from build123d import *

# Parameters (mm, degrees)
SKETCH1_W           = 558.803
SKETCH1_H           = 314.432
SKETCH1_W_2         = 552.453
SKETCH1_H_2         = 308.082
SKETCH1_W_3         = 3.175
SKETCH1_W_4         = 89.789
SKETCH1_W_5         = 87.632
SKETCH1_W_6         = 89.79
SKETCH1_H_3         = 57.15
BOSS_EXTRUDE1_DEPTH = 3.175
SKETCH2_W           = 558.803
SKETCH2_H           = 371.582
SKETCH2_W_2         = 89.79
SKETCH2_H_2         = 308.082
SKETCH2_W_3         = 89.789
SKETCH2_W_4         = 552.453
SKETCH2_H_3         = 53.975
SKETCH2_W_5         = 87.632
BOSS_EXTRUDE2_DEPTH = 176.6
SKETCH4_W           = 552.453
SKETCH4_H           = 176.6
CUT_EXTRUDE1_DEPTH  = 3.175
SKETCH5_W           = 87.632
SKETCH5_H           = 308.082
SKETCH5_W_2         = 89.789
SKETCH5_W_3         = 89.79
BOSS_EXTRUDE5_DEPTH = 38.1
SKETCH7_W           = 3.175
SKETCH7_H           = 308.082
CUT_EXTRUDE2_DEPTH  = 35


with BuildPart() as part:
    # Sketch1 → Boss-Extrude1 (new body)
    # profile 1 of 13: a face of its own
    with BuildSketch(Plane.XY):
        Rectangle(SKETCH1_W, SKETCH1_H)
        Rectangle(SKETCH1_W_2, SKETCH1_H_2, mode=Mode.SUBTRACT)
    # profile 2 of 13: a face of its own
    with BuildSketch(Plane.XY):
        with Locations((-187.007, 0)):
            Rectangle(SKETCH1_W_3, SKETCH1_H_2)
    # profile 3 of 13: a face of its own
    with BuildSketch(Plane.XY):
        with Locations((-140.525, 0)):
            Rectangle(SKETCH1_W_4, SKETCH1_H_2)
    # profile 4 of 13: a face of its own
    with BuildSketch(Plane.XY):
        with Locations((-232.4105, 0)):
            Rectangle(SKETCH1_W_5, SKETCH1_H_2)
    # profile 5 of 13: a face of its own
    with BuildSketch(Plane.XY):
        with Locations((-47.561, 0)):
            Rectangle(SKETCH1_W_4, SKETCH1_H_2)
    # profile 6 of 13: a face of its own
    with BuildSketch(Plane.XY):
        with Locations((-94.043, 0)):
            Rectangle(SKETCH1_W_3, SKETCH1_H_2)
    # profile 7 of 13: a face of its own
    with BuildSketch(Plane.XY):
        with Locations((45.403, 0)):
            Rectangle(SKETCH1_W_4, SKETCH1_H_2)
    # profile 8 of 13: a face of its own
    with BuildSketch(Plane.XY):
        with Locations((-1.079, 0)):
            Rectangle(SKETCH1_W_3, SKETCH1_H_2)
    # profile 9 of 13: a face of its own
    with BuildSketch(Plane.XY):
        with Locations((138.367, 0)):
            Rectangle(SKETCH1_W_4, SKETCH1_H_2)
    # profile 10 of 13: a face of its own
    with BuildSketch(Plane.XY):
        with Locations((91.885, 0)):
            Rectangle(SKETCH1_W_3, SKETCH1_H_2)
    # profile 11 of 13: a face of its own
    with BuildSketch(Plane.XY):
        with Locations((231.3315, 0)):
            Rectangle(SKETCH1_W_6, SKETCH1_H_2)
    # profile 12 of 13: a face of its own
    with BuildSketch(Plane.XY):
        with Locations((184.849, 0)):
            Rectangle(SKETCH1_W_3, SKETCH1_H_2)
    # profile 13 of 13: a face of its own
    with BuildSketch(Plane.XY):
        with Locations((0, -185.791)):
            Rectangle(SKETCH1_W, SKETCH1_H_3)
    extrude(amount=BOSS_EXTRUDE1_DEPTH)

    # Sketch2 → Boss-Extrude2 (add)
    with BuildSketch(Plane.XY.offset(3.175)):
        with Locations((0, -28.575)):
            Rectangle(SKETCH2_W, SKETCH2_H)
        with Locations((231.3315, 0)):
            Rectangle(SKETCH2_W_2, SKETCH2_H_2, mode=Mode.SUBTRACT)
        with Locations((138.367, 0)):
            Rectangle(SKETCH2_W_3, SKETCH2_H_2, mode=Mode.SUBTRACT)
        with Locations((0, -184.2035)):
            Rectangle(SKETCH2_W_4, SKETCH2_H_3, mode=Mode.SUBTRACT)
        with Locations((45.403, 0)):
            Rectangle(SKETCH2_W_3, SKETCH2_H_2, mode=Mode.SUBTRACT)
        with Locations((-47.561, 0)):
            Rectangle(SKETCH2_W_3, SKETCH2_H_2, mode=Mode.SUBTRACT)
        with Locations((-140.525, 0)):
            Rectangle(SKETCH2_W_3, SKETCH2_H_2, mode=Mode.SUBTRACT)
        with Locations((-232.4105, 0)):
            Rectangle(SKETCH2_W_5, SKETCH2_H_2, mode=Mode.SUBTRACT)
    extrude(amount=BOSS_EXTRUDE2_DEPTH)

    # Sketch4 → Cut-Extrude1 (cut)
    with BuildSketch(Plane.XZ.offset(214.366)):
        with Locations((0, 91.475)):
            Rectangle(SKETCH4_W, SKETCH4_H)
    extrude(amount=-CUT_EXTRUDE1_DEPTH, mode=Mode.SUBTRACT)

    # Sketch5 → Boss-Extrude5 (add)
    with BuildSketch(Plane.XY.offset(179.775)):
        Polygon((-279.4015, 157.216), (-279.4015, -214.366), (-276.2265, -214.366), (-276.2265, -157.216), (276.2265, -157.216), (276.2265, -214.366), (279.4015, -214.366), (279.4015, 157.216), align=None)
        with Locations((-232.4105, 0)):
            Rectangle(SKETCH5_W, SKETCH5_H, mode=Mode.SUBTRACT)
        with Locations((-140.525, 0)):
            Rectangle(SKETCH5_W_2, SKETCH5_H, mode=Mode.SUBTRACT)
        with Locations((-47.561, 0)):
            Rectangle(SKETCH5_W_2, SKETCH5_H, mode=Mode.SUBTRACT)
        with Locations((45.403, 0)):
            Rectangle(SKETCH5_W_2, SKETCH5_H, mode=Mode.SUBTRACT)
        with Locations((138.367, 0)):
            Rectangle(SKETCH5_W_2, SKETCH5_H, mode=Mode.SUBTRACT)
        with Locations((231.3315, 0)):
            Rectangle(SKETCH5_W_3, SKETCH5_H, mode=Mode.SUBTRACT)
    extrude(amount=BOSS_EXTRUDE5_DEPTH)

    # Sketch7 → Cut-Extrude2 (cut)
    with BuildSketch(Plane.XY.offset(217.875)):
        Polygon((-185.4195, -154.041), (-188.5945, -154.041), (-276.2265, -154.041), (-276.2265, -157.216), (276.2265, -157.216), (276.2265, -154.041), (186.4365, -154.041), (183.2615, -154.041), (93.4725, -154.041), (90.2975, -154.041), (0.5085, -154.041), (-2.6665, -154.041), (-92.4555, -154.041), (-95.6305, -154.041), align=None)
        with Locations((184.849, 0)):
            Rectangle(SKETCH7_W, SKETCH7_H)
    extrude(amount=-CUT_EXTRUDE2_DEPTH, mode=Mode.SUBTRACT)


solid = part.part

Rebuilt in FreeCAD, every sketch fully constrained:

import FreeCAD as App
import Part
import Sketcher
from FreeCAD import Vector
Q = App.Units.Quantity


def add_polygon(sketch, points):
    """Adds a closed chain of lines whose ends are joined by coincident constraints."""
    first, n = sketch.GeometryCount, len(points)
    for a, b in zip(points, points[1:] + points[:1]):
        sketch.addGeometry(Part.LineSegment(App.Vector(*a, 0), App.Vector(*b, 0)), False)
    for i in range(n):
        sketch.addConstraint(Sketcher.Constraint("Coincident", first + i, 2, first + (i + 1) % n, 1))

doc = App.newDocument("Part")
body = doc.addObject("PartDesign::Body", "Body")

sketch1 = body.newObject("Sketcher::SketchObject", "Sketch")
sketch1.AttachmentSupport = (doc.getObject("XY_Plane"), [""])
sketch1.MapMode = "FlatFace"
add_polygon(sketch1, [(-279.4015, 157.216), (-279.4015, -214.366), (279.4015, -214.366), (279.4015, 157.216)])
sketch1.addConstraint(Sketcher.Constraint("Vertical", 0))
sketch1.addConstraint(Sketcher.Constraint("Horizontal", 1))
sketch1.addConstraint(Sketcher.Constraint("Vertical", 2))
sketch1.addConstraint(Sketcher.Constraint("Horizontal", 3))
sketch1.addConstraint(Sketcher.Constraint("DistanceX", 1, 1, 1, 2, Q("558.803 mm")))
sketch1.addConstraint(Sketcher.Constraint("DistanceY", 0, 2, 0, 1, Q("371.582 mm")))
sketch1.addConstraint(Sketcher.Constraint("DistanceX", 0, 2, -1, 1, Q("279.4015 mm")))
sketch1.addConstraint(Sketcher.Constraint("DistanceY", 0, 2, -1, 1, Q("214.366 mm")))
pad1 = body.newObject("PartDesign::Pad", "Pad")
pad1.Profile = sketch1
pad1.Length = Q("0.125 in")

sketch2 = body.newObject("Sketcher::SketchObject", "Sketch001")
sketch2.AttachmentSupport = (doc.getObject("XY_Plane"), [""])
sketch2.MapMode = "FlatFace"
sketch2.AttachmentOffset = App.Placement(Vector(0, 0, 0.125 * 25.4), App.Rotation())
add_polygon(sketch2, [(-279.4015, 157.216), (-279.4015, -214.366), (279.4015, -214.366), (279.4015, 157.216)])
add_polygon(sketch2, [(276.2265, -211.191), (-276.2265, -211.191), (-276.2265, -157.216), (276.2265, -157.216)])
add_polygon(sketch2, [(-188.5945, -154.041), (-276.2265, -154.041), (-276.2265, 154.041), (-188.5945, 154.041)])
add_polygon(sketch2, [(-95.6305, -154.041), (-185.4195, -154.041), (-185.4195, 154.041), (-95.6305, 154.041)])
add_polygon(sketch2, [(-2.6665, -154.041), (-92.4555, -154.041), (-92.4555, 154.041), (-2.6665, 154.041)])
add_polygon(sketch2, [(90.2975, -154.041), (0.5085, -154.041), (0.5085, 154.041), (90.2975, 154.041)])
add_polygon(sketch2, [(183.2615, -154.041), (93.4725, -154.041), (93.4725, 154.041), (183.2615, 154.041)])
add_polygon(sketch2, [(276.2265, -154.041), (186.4365, -154.041), (186.4365, 154.041), (276.2265, 154.041)])
sketch2.addConstraint(Sketcher.Constraint("Vertical", 0))
sketch2.addConstraint(Sketcher.Constraint("Horizontal", 1))
sketch2.addConstraint(Sketcher.Constraint("Vertical", 2))
sketch2.addConstraint(Sketcher.Constraint("Horizontal", 3))
sketch2.addConstraint(Sketcher.Constraint("Horizontal", 4))
sketch2.addConstraint(Sketcher.Constraint("Vertical", 5))
sketch2.addConstraint(Sketcher.Constraint("Horizontal", 6))
sketch2.addConstraint(Sketcher.Constraint("Vertical", 7))
sketch2.addConstraint(Sketcher.Constraint("Horizontal", 8))
sketch2.addConstraint(Sketcher.Constraint("Vertical", 9))
sketch2.addConstraint(Sketcher.Constraint("Horizontal", 10))
sketch2.addConstraint(Sketcher.Constraint("Vertical", 11))
sketch2.addConstraint(Sketcher.Constraint("Horizontal", 12))
sketch2.addConstraint(Sketcher.Constraint("Vertical", 13))
sketch2.addConstraint(Sketcher.Constraint("Horizontal", 14))
sketch2.addConstraint(Sketcher.Constraint("Vertical", 15))
sketch2.addConstraint(Sketcher.Constraint("Horizontal", 16))
sketch2.addConstraint(Sketcher.Constraint("Vertical", 17))
sketch2.addConstraint(Sketcher.Constraint("Horizontal", 18))
sketch2.addConstraint(Sketcher.Constraint("Vertical", 19))
sketch2.addConstraint(Sketcher.Constraint("Horizontal", 20))
sketch2.addConstraint(Sketcher.Constraint("Vertical", 21))
sketch2.addConstraint(Sketcher.Constraint("Horizontal", 22))
sketch2.addConstraint(Sketcher.Constraint("Vertical", 23))
sketch2.addConstraint(Sketcher.Constraint("Horizontal", 24))
sketch2.addConstraint(Sketcher.Constraint("Vertical", 25))
sketch2.addConstraint(Sketcher.Constraint("Horizontal", 26))
sketch2.addConstraint(Sketcher.Constraint("Vertical", 27))
sketch2.addConstraint(Sketcher.Constraint("Horizontal", 28))
sketch2.addConstraint(Sketcher.Constraint("Vertical", 29))
sketch2.addConstraint(Sketcher.Constraint("Horizontal", 30))
sketch2.addConstraint(Sketcher.Constraint("Vertical", 31))
sketch2.addConstraint(Sketcher.Constraint("Symmetric", 8, 2, 30, 2, -1, 1))
sketch2.addConstraint(Sketcher.Constraint("Horizontal", 11, 2, 12, 2))
sketch2.addConstraint(Sketcher.Constraint("Horizontal", 10, 2, 13, 2))
sketch2.addConstraint(Sketcher.Constraint("Horizontal", 15, 2, 16, 2))
sketch2.addConstraint(Sketcher.Constraint("Horizontal", 14, 2, 17, 2))
sketch2.addConstraint(Sketcher.Constraint("Horizontal", 19, 2, 20, 2))
sketch2.addConstraint(Sketcher.Constraint("Horizontal", 18, 2, 21, 2))
sketch2.addConstraint(Sketcher.Constraint("Horizontal", 23, 2, 24, 2))
sketch2.addConstraint(Sketcher.Constraint("Horizontal", 22, 2, 25, 2))
sketch2.addConstraint(Sketcher.Constraint("Horizontal", 27, 2, 28, 2))
sketch2.addConstraint(Sketcher.Constraint("Horizontal", 26, 2, 29, 2))
sketch2.addConstraint(Sketcher.Constraint("Vertical", 5, 2, 8, 2))
sketch2.addConstraint(Sketcher.Constraint("Vertical", 7, 2, 30, 2))
sketch2.addConstraint(Sketcher.Constraint("Equal", 14, 16))
sketch2.addConstraint(Sketcher.Constraint("Equal", 18, 20))
sketch2.addConstraint(Sketcher.Constraint("Equal", 22, 24))
sketch2.addConstraint(Sketcher.Constraint("DistanceX", 12, 2, 12, 1, Q("3.535 in")))
sketch2.addConstraint(Sketcher.Constraint("DistanceY", 5, 1, 5, 2, Q("2.125 in")))
sketch2.addConstraint(Sketcher.Constraint("DistanceY", 0, 2, 5, 2, Q("2.25 in")))
sketch2.addConstraint(Sketcher.Constraint("DistanceY", 4, 2, 8, 2, Q("2.25 in")))
sketch2.addConstraint(Sketcher.Constraint("DistanceX", 10, 2, 14, 2, Q("3.66 in")))
sketch2.addConstraint(Sketcher.Constraint("DistanceX", 12, 2, 16, 2, Q("3.66 in")))
sketch2.addConstraint(Sketcher.Constraint("DistanceX", 16, 2, 20, 2, Q("3.66 in")))
sketch2.addConstraint(Sketcher.Constraint("DistanceX", 20, 2, 24, 2, Q("3.66 in")))
sketch2.addConstraint(Sketcher.Constraint("DistanceX", 24, 2, 28, 2, Q("3.66 in")))
sketch2.addConstraint(Sketcher.Constraint("DistanceX", 0, 2, 4, 2, Q("0.125 in")))
sketch2.addConstraint(Sketcher.Constraint("DistanceX", 6, 2, 1, 2, Q("0.125 in")))
sketch2.addConstraint(Sketcher.Constraint("DistanceY", 9, 2, 3, 2, Q("0.125 in")))
sketch2.addConstraint(Sketcher.Constraint("DistanceX", 1, 1, 1, 2, Q("558.803 mm")))
sketch2.addConstraint(Sketcher.Constraint("DistanceX", 8, 2, 8, 1, Q("87.632 mm")))
sketch2.addConstraint(Sketcher.Constraint("DistanceY", 0, 2, 0, 1, Q("371.582 mm")))
pad2 = body.newObject("PartDesign::Pad", "Pad001")
pad2.Profile = sketch2
pad2.Length = 176.6

sketch3 = body.newObject("Sketcher::SketchObject", "Sketch002")
sketch3.AttachmentSupport = (doc.getObject("XZ_Plane"), [""])
sketch3.MapMode = "FlatFace"
sketch3.AttachmentOffset = App.Placement(Vector(0, 0, 214.366), App.Rotation())
add_polygon(sketch3, [(-276.2265, 179.775), (-276.2265, 3.175), (276.2265, 3.175), (276.2265, 179.775)])
sketch3.addConstraint(Sketcher.Constraint("Vertical", 0))
sketch3.addConstraint(Sketcher.Constraint("Horizontal", 1))
sketch3.addConstraint(Sketcher.Constraint("Vertical", 2))
sketch3.addConstraint(Sketcher.Constraint("Horizontal", 3))
sketch3.addConstraint(Sketcher.Constraint("DistanceY", -1, 1, 0, 2, Q("0.125 in")))
sketch3.addConstraint(Sketcher.Constraint("DistanceX", 1, 1, 1, 2, Q("552.453 mm")))
sketch3.addConstraint(Sketcher.Constraint("DistanceY", 0, 2, 0, 1, Q("176.6 mm")))
sketch3.addConstraint(Sketcher.Constraint("DistanceX", 0, 2, -1, 1, Q("276.2265 mm")))
pocket1 = body.newObject("PartDesign::Pocket", "Pocket")
pocket1.Profile = sketch3
pocket1.Length = Q("0.125 in")

sketch4 = body.newObject("Sketcher::SketchObject", "Sketch003")
sketch4.AttachmentSupport = (doc.getObject("XY_Plane"), [""])
sketch4.MapMode = "FlatFace"
sketch4.AttachmentOffset = App.Placement(Vector(0, 0, 179.775), App.Rotation())
add_polygon(sketch4, [(-279.4015, 157.216), (-279.4015, -214.366), (-276.2265, -214.366), (-276.2265, -157.216), (276.2265, -157.216), (276.2265, -214.366), (279.4015, -214.366), (279.4015, 157.216)])
add_polygon(sketch4, [(-188.5945, -154.041), (-276.2265, -154.041), (-276.2265, 154.041), (-188.5945, 154.041)])
add_polygon(sketch4, [(-95.6305, -154.041), (-185.4195, -154.041), (-185.4195, 154.041), (-95.6305, 154.041)])
add_polygon(sketch4, [(-2.6665, -154.041), (-92.4555, -154.041), (-92.4555, 154.041), (-2.6665, 154.041)])
add_polygon(sketch4, [(90.2975, -154.041), (0.5085, -154.041), (0.5085, 154.041), (90.2975, 154.041)])
add_polygon(sketch4, [(183.2615, -154.041), (93.4725, -154.041), (93.4725, 154.041), (183.2615, 154.041)])
add_polygon(sketch4, [(276.2265, -154.041), (186.4365, -154.041), (186.4365, 154.041), (276.2265, 154.041)])
sketch4.addConstraint(Sketcher.Constraint("Vertical", 0))
sketch4.addConstraint(Sketcher.Constraint("Horizontal", 1))
sketch4.addConstraint(Sketcher.Constraint("Vertical", 2))
sketch4.addConstraint(Sketcher.Constraint("Horizontal", 3))
sketch4.addConstraint(Sketcher.Constraint("Vertical", 4))
sketch4.addConstraint(Sketcher.Constraint("Horizontal", 5))
sketch4.addConstraint(Sketcher.Constraint("Vertical", 6))
sketch4.addConstraint(Sketcher.Constraint("Horizontal", 7))
sketch4.addConstraint(Sketcher.Constraint("Horizontal", 8))
sketch4.addConstraint(Sketcher.Constraint("Vertical", 9))
sketch4.addConstraint(Sketcher.Constraint("Horizontal", 10))
sketch4.addConstraint(Sketcher.Constraint("Vertical", 11))
sketch4.addConstraint(Sketcher.Constraint("Horizontal", 12))
sketch4.addConstraint(Sketcher.Constraint("Vertical", 13))
sketch4.addConstraint(Sketcher.Constraint("Horizontal", 14))
sketch4.addConstraint(Sketcher.Constraint("Vertical", 15))
sketch4.addConstraint(Sketcher.Constraint("Horizontal", 16))
sketch4.addConstraint(Sketcher.Constraint("Vertical", 17))
sketch4.addConstraint(Sketcher.Constraint("Horizontal", 18))
sketch4.addConstraint(Sketcher.Constraint("Vertical", 19))
sketch4.addConstraint(Sketcher.Constraint("Horizontal", 20))
sketch4.addConstraint(Sketcher.Constraint("Vertical", 21))
sketch4.addConstraint(Sketcher.Constraint("Horizontal", 22))
sketch4.addConstraint(Sketcher.Constraint("Vertical", 23))
sketch4.addConstraint(Sketcher.Constraint("Horizontal", 24))
sketch4.addConstraint(Sketcher.Constraint("Vertical", 25))
sketch4.addConstraint(Sketcher.Constraint("Horizontal", 26))
sketch4.addConstraint(Sketcher.Constraint("Vertical", 27))
sketch4.addConstraint(Sketcher.Constraint("Horizontal", 28))
sketch4.addConstraint(Sketcher.Constraint("Vertical", 29))
sketch4.addConstraint(Sketcher.Constraint("Horizontal", 30))
sketch4.addConstraint(Sketcher.Constraint("Vertical", 31))
sketch4.addConstraint(Sketcher.Constraint("Symmetric", 8, 2, 30, 2, -1, 1))
sketch4.addConstraint(Sketcher.Constraint("Symmetric", 1, 2, 4, 2, -2))
sketch4.addConstraint(Sketcher.Constraint("Horizontal", 11, 2, 12, 2))
sketch4.addConstraint(Sketcher.Constraint("Horizontal", 10, 2, 13, 2))
sketch4.addConstraint(Sketcher.Constraint("Horizontal", 15, 2, 16, 2))
sketch4.addConstraint(Sketcher.Constraint("Horizontal", 14, 2, 17, 2))
sketch4.addConstraint(Sketcher.Constraint("Horizontal", 19, 2, 20, 2))
sketch4.addConstraint(Sketcher.Constraint("Horizontal", 18, 2, 21, 2))
sketch4.addConstraint(Sketcher.Constraint("Horizontal", 23, 2, 24, 2))
sketch4.addConstraint(Sketcher.Constraint("Horizontal", 22, 2, 25, 2))
sketch4.addConstraint(Sketcher.Constraint("Horizontal", 27, 2, 28, 2))
sketch4.addConstraint(Sketcher.Constraint("Horizontal", 26, 2, 29, 2))
sketch4.addConstraint(Sketcher.Constraint("Vertical", 2, 2, 8, 2))
sketch4.addConstraint(Sketcher.Constraint("Equal", 1, 5))
sketch4.addConstraint(Sketcher.Constraint("Equal", 14, 16))
sketch4.addConstraint(Sketcher.Constraint("Equal", 18, 20))
sketch4.addConstraint(Sketcher.Constraint("Equal", 22, 24))
sketch4.addConstraint(Sketcher.Constraint("DistanceY", 2, 1, 2, 2, Q("2.25 in")))
sketch4.addConstraint(Sketcher.Constraint("DistanceX", 1, 1, 1, 2, Q("0.125 in")))
sketch4.addConstraint(Sketcher.Constraint("DistanceX", 12, 2, 12, 1, Q("3.535 in")))
sketch4.addConstraint(Sketcher.Constraint("DistanceX", 10, 2, 14, 2, Q("3.66 in")))
sketch4.addConstraint(Sketcher.Constraint("DistanceX", 12, 2, 16, 2, Q("3.66 in")))
sketch4.addConstraint(Sketcher.Constraint("DistanceX", 16, 2, 20, 2, Q("3.66 in")))
sketch4.addConstraint(Sketcher.Constraint("DistanceX", 20, 2, 24, 2, Q("3.66 in")))
sketch4.addConstraint(Sketcher.Constraint("DistanceX", 24, 2, 28, 2, Q("3.66 in")))
sketch4.addConstraint(Sketcher.Constraint("DistanceY", 2, 2, 8, 2, Q("0.125 in")))
sketch4.addConstraint(Sketcher.Constraint("DistanceY", 9, 2, 7, 2, Q("0.125 in")))
sketch4.addConstraint(Sketcher.Constraint("DistanceX", 3, 1, 3, 2, Q("552.453 mm")))
sketch4.addConstraint(Sketcher.Constraint("DistanceX", 8, 2, 8, 1, Q("87.632 mm")))
sketch4.addConstraint(Sketcher.Constraint("DistanceY", 0, 2, 0, 1, Q("371.582 mm")))
pad3 = body.newObject("PartDesign::Pad", "Pad002")
pad3.Profile = sketch4
pad3.Length = Q("1.5 in")

sketch5 = body.newObject("Sketcher::SketchObject", "Sketch004")
sketch5.AttachmentSupport = (doc.getObject("XY_Plane"), [""])
sketch5.MapMode = "FlatFace"
sketch5.AttachmentOffset = App.Placement(Vector(0, 0, 217.875), App.Rotation())
add_polygon(sketch5, [(-276.2265, -154.041), (-276.2265, -157.216), (276.2265, -157.216), (276.2265, -154.041), (186.4365, -154.041), (186.4365, 154.041), (183.2615, 154.041), (183.2615, -154.041)])
sketch5.addConstraint(Sketcher.Constraint("Vertical", 0))
sketch5.addConstraint(Sketcher.Constraint("Horizontal", 1))
sketch5.addConstraint(Sketcher.Constraint("Vertical", 2))
sketch5.addConstraint(Sketcher.Constraint("Horizontal", 3))
sketch5.addConstraint(Sketcher.Constraint("Vertical", 4))
sketch5.addConstraint(Sketcher.Constraint("Horizontal", 5))
sketch5.addConstraint(Sketcher.Constraint("Vertical", 6))
sketch5.addConstraint(Sketcher.Constraint("Horizontal", 7))
sketch5.addConstraint(Sketcher.Constraint("Symmetric", 2, 2, 7, 2, -2))
sketch5.addConstraint(Sketcher.Constraint("Equal", 5, 0))
sketch5.addConstraint(Sketcher.Constraint("DistanceX", 5, 2, 5, 1, Q("0.125 in")))
sketch5.addConstraint(Sketcher.Constraint("DistanceX", 1, 1, 1, 2, Q("552.453 mm")))
sketch5.addConstraint(Sketcher.Constraint("DistanceX", 3, 2, 3, 1, Q("89.79 mm")))
sketch5.addConstraint(Sketcher.Constraint("DistanceY", 4, 1, 4, 2, Q("308.082 mm")))
sketch5.addConstraint(Sketcher.Constraint("DistanceY", 0, 2, -1, 1, Q("157.216 mm")))
pocket2 = body.newObject("PartDesign::Pocket", "Pocket001")
pocket2.Profile = sketch5
pocket2.Length = 35

doc.recompute()
